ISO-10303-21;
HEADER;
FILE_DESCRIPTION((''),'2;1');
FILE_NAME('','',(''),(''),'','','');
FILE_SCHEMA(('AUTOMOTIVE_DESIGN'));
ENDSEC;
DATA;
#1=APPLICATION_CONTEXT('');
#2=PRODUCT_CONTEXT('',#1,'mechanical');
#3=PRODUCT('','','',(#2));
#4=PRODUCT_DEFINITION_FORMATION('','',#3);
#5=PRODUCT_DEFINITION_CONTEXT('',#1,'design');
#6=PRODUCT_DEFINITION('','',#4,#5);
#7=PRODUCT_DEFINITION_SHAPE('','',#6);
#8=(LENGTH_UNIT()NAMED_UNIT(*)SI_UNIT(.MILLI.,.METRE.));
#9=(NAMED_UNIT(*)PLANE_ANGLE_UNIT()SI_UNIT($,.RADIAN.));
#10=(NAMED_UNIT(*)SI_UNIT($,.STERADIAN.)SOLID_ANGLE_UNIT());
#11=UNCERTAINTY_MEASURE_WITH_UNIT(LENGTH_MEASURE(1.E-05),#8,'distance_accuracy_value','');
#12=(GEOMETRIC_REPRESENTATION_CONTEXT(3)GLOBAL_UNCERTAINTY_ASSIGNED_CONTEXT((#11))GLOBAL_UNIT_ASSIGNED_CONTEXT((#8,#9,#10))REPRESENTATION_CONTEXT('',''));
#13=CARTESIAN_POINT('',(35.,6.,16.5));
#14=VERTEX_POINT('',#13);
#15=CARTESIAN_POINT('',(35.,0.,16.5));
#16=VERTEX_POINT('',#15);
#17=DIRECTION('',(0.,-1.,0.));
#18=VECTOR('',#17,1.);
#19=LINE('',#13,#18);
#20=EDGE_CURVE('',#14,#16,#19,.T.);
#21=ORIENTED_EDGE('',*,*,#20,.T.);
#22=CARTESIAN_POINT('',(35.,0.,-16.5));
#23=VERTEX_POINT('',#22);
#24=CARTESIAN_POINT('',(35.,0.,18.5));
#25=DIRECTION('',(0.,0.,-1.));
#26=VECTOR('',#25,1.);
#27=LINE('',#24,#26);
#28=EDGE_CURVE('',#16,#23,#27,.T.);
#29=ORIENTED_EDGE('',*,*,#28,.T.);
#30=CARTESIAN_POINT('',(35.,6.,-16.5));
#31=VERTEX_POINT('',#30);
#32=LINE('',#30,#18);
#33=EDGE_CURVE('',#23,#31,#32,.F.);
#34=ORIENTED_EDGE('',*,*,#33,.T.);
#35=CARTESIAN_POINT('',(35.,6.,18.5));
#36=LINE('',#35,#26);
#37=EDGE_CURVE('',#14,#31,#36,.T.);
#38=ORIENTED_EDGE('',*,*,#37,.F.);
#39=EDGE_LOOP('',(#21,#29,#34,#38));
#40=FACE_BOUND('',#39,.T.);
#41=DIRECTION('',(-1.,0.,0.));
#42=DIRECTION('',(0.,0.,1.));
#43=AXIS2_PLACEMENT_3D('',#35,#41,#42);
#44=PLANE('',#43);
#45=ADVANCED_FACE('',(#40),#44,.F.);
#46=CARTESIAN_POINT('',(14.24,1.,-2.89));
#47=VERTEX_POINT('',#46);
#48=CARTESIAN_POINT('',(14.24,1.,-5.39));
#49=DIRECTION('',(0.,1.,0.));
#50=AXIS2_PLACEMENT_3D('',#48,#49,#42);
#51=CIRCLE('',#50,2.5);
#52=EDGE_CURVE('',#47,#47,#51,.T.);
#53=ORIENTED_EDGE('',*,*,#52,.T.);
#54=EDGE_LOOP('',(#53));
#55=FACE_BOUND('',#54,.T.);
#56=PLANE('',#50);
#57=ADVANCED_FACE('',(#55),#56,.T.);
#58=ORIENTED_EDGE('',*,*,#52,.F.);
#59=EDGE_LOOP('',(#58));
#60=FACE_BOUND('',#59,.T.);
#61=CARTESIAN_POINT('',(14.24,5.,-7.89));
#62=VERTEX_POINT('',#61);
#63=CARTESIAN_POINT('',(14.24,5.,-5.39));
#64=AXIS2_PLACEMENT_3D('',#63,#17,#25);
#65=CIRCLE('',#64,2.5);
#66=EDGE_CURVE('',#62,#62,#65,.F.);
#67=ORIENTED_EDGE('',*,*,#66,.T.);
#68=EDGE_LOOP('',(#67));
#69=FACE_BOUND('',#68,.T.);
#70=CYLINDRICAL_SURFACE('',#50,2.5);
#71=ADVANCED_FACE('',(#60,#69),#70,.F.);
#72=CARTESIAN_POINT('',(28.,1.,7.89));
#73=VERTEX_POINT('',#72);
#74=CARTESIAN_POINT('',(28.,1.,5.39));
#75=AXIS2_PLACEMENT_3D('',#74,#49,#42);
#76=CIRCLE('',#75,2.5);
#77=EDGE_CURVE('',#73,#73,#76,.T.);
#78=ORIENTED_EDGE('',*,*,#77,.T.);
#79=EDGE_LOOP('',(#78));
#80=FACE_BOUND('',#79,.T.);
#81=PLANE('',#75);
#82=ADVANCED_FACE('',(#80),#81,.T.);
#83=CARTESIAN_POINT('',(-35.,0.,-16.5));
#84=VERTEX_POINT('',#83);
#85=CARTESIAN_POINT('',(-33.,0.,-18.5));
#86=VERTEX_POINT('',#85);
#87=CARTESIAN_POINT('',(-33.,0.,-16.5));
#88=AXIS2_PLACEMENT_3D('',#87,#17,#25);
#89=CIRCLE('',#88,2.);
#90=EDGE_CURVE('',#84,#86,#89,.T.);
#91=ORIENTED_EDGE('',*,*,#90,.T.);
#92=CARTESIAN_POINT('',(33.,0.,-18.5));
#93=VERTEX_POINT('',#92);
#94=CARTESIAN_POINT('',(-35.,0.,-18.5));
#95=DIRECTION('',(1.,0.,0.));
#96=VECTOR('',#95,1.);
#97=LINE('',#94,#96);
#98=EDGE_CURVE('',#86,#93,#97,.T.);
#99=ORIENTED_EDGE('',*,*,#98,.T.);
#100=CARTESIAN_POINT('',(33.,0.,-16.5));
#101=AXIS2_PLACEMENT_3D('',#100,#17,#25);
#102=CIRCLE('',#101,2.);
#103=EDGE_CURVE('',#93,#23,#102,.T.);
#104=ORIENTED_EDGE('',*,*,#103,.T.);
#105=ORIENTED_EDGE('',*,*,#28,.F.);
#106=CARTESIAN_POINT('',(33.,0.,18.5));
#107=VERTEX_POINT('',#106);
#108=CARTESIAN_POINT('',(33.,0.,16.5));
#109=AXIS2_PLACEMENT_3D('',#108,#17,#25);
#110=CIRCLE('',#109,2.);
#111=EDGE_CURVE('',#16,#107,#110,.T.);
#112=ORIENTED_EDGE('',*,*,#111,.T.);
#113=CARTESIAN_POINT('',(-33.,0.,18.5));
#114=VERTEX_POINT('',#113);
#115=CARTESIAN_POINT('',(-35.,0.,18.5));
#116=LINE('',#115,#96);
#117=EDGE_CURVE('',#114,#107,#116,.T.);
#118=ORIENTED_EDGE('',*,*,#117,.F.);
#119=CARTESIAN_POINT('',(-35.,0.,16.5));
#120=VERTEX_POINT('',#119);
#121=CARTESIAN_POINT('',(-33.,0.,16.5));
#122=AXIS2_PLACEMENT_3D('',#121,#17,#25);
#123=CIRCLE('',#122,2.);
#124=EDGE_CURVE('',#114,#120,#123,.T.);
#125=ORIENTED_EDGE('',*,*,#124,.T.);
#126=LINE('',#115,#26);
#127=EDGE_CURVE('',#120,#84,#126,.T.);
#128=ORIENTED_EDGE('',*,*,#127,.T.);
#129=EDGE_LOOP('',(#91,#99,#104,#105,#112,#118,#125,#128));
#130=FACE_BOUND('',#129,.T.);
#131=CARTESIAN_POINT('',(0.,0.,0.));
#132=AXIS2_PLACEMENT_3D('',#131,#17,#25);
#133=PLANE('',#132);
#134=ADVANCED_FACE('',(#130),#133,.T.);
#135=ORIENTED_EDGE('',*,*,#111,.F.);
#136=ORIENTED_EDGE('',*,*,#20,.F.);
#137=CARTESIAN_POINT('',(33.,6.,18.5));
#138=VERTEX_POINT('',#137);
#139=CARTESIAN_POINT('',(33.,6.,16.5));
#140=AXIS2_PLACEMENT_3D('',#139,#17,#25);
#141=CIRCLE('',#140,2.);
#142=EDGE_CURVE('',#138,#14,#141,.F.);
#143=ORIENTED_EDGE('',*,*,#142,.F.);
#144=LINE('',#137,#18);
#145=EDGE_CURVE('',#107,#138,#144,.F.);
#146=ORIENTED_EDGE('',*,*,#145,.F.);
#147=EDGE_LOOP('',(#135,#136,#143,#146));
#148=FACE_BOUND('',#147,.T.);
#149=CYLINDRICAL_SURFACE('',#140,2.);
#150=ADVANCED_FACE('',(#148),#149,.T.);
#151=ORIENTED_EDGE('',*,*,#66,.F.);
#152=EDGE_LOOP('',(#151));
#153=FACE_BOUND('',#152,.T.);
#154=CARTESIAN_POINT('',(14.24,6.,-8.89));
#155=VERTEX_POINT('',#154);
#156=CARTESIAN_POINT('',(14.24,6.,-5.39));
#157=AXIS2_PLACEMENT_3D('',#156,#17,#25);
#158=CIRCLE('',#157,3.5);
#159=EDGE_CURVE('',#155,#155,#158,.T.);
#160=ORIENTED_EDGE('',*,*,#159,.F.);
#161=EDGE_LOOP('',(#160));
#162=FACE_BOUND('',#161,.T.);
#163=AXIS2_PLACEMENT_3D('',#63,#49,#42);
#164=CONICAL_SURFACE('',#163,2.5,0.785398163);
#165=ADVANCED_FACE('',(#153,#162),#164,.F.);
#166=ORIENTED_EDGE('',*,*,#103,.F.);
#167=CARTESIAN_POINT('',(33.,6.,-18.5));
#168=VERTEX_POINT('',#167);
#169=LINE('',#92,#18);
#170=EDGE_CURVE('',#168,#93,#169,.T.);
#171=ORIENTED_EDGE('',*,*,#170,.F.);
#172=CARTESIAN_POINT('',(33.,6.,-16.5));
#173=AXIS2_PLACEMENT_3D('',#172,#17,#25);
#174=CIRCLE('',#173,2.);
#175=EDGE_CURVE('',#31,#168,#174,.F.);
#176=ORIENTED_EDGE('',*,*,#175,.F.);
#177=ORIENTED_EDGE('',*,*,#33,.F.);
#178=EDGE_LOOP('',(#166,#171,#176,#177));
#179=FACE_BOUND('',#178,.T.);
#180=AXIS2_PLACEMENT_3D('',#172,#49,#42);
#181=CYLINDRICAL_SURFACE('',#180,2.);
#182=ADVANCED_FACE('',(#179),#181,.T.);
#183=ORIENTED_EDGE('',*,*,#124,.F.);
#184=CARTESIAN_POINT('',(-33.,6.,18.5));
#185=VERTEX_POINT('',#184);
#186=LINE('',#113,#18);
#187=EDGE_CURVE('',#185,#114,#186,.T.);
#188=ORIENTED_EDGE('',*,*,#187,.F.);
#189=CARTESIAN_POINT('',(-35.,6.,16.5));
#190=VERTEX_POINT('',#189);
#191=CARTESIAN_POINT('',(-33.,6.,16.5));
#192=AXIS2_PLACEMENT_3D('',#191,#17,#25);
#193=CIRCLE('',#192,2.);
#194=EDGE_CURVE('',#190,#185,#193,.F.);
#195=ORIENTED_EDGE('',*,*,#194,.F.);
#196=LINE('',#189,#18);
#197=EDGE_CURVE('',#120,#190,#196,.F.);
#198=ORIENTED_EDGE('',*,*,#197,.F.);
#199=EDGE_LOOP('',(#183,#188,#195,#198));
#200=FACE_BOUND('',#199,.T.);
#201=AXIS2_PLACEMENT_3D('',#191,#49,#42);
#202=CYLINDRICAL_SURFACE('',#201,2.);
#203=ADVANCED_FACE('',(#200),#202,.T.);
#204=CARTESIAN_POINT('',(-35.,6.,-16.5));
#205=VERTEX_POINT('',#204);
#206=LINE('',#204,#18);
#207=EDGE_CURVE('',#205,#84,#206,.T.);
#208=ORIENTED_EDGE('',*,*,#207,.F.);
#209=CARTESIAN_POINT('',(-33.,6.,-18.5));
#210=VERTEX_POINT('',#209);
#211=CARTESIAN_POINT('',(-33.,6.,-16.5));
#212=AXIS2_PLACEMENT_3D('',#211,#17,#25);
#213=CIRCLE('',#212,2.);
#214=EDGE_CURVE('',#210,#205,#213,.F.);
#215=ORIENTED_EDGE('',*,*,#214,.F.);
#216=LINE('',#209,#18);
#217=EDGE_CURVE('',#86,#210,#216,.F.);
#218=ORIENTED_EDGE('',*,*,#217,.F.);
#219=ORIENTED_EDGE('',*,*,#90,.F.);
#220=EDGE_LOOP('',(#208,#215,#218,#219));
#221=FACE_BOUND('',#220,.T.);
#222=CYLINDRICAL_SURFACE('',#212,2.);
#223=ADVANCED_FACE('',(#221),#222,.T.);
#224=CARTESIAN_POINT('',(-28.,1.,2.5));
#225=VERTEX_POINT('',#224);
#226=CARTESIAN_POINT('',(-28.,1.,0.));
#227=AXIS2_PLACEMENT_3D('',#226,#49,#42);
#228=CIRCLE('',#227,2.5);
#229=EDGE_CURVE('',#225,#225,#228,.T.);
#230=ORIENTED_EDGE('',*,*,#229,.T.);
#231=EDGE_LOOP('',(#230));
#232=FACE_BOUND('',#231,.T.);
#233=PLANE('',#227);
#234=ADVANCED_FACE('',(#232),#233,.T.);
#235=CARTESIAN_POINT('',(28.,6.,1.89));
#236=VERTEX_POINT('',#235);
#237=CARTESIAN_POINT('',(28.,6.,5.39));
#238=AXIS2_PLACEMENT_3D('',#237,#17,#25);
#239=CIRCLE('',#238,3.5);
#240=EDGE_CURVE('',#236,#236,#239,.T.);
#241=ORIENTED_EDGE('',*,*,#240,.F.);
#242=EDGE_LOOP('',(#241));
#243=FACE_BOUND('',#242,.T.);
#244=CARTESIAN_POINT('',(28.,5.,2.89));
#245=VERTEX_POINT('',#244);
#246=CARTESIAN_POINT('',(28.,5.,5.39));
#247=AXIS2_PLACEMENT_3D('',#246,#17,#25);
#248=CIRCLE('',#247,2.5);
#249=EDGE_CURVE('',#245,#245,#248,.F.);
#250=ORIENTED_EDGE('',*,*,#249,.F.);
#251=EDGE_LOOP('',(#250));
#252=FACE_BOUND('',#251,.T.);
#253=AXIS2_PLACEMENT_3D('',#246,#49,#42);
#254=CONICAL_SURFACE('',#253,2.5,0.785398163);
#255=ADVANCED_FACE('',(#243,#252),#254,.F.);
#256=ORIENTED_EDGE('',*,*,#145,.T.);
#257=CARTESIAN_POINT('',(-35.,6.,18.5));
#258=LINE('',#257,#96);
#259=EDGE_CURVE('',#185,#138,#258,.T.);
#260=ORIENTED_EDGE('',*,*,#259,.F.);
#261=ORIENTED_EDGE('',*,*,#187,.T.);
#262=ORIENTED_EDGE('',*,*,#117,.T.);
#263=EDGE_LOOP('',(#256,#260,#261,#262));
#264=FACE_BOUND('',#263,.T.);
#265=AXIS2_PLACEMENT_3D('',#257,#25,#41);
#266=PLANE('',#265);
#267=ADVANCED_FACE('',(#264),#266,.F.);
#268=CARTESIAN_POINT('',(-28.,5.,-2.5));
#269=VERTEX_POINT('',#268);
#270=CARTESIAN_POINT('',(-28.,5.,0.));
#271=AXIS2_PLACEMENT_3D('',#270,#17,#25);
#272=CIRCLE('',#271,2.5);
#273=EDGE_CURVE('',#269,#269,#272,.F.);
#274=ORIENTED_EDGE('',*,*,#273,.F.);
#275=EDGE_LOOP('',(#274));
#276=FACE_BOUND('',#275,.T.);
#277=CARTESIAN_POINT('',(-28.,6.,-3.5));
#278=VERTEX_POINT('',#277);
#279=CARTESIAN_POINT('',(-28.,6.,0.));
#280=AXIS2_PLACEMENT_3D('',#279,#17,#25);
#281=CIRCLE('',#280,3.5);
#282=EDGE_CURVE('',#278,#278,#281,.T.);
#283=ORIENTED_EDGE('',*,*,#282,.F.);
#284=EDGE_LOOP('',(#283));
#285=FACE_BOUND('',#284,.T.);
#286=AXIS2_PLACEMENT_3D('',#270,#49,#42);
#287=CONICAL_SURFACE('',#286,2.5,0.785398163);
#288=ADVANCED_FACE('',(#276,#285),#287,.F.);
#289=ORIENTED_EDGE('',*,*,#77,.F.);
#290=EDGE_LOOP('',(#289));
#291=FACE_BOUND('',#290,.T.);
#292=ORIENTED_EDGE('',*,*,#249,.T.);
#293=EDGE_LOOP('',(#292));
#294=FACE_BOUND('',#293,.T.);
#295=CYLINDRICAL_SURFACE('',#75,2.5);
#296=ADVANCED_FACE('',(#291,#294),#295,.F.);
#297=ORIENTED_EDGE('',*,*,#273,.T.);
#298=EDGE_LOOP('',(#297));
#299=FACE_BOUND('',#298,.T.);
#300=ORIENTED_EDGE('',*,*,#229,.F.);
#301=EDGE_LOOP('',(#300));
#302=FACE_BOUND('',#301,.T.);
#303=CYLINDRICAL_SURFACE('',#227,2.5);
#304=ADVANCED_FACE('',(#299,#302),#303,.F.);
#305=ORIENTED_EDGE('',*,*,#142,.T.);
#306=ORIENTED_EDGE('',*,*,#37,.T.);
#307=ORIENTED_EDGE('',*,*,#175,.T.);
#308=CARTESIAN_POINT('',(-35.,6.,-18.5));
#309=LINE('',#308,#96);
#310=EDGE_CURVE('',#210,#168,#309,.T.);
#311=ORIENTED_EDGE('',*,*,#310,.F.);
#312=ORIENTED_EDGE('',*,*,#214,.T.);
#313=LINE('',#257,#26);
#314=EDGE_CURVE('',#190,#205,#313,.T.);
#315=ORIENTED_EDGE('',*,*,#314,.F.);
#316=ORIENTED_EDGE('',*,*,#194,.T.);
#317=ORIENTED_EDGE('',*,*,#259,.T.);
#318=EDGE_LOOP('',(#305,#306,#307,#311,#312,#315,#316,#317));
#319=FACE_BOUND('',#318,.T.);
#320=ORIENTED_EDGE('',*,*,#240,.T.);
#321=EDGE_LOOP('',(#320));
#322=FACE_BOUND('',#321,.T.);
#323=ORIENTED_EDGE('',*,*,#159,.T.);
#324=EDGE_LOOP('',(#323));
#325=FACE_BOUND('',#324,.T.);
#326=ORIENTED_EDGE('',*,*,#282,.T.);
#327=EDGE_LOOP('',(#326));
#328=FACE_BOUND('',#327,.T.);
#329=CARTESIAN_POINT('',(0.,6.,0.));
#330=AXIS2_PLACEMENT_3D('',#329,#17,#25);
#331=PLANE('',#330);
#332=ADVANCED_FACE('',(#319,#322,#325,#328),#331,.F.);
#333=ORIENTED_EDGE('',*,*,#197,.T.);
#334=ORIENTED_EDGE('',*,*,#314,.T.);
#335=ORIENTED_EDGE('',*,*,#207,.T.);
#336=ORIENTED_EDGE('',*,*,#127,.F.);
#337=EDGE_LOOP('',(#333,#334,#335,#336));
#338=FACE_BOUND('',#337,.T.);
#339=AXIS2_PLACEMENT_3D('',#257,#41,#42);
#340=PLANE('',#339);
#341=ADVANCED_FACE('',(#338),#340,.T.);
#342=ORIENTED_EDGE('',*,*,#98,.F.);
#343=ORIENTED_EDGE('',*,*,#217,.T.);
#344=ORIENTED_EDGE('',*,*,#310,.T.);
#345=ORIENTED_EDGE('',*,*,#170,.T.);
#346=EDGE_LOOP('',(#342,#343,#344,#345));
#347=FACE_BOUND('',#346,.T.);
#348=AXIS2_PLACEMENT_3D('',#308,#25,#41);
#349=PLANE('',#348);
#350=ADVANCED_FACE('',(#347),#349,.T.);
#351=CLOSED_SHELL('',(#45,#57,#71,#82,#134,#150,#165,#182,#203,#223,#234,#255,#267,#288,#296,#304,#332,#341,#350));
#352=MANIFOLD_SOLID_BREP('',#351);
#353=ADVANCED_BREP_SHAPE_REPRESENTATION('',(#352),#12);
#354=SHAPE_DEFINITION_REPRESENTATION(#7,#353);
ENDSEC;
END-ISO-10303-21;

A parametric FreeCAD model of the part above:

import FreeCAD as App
import Part
import Sketcher

V = App.Vector


def edges_at(feature, points):
    """Names of the edges that pass closest to the given points."""
    edges = feature.Shape.Edges
    near = lambda p: min(range(len(edges)), key=lambda i: edges[i].distToShape(Part.Vertex(*p))[0])
    return sorted({f"Edge{near(p) + 1}" for p in points})

doc = App.newDocument("Part")
body = doc.addObject("PartDesign::Body", "Body")

# Sketch on XZ plane
sketch1 = body.newObject("Sketcher::SketchObject", "Sketch")
sketch1.AttachmentSupport = (doc.getObject("XZ_Plane"), [""])
sketch1.MapMode = "FlatFace"
sketch1.addGeometry(Part.LineSegment(V(-35, -18, 0), V(-35, 18, 0)), False)
sketch1.addGeometry(Part.LineSegment(V(-35, 18, 0), V(35, 18, 0)), False)
sketch1.addGeometry(Part.LineSegment(V(35, 18, 0), V(35, -18, 0)), False)
sketch1.addGeometry(Part.LineSegment(V(35, -18, 0), V(-35, -18, 0)), False)
sketch1.addConstraint(Sketcher.Constraint("Coincident", 0, 2, 1, 1))
sketch1.addConstraint(Sketcher.Constraint("Coincident", 1, 2, 2, 1))
sketch1.addConstraint(Sketcher.Constraint("Coincident", 2, 2, 3, 1))
sketch1.addConstraint(Sketcher.Constraint("Coincident", 3, 2, 0, 1))
sketch1.addConstraint(Sketcher.Constraint("Vertical", 0))
sketch1.addConstraint(Sketcher.Constraint("Horizontal", 1))
sketch1.addConstraint(Sketcher.Constraint("Vertical", 2))
sketch1.addConstraint(Sketcher.Constraint("Horizontal", 3))
sketch1.addConstraint(Sketcher.Constraint("Symmetric", 0, 2, 2, 2, -1, 1))
sketch1.addConstraint(Sketcher.Constraint("DistanceX", 1, 1, 1, 2, 70.0))
sketch1.addConstraint(Sketcher.Constraint("DistanceY", 0, 1, 0, 2, 37.0))
pad1 = body.newObject("PartDesign::Pad", "Pad")
pad1.Profile = sketch1
pad1.Length = 6
pad1.Reversed = True
doc.recompute()

fillet = body.newObject("PartDesign::Fillet", "Fillet")
fillet.Base = (pad1, edges_at(pad1, [
    (-35, 3, 18.5),
    (35, 3, 18.5),
    (35, 3, -18.5),
    (-35, 3, -18.5),
]))
fillet.Radius = 2

# Sketch on XZ plane
sketch2 = body.newObject("Sketcher::SketchObject", "Sketch001")
sketch2.AttachmentSupport = (doc.getObject("XZ_Plane"), [""])
sketch2.MapMode = "FlatFace"
sketch2.AttachmentOffset = App.Placement(V(0, 0, -6), App.Rotation())
sketch2.addGeometry(Part.Circle(V(28, 5.4, 0), V(0, 0, 1), 2.5), False)
sketch2.addConstraint(Sketcher.Constraint("Diameter", 0, 5.0))
sketch2.addConstraint(Sketcher.Constraint("DistanceX", -1, 1, 0, 3, 28.0))
sketch2.addConstraint(Sketcher.Constraint("DistanceY", -1, 1, 0, 3, 5.39))
pocket1 = body.newObject("PartDesign::Pocket", "Pocket")
pocket1.Profile = sketch2
pocket1.Length = 5
pocket1.Reversed = True

# Sketch on XZ plane
sketch3 = body.newObject("Sketcher::SketchObject", "Sketch002")
sketch3.AttachmentSupport = (doc.getObject("XZ_Plane"), [""])
sketch3.MapMode = "FlatFace"
sketch3.AttachmentOffset = App.Placement(V(0, 0, -6), App.Rotation())
sketch3.addGeometry(Part.Circle(V(14.2, -5.4, 0), V(0, 0, 1), 2.5), False)
sketch3.addConstraint(Sketcher.Constraint("Diameter", 0, 5.0))
sketch3.addConstraint(Sketcher.Constraint("DistanceX", -1, 1, 0, 3, 14.24))
sketch3.addConstraint(Sketcher.Constraint("DistanceY", 0, 3, -1, 1, 5.39))
pocket2 = body.newObject("PartDesign::Pocket", "Pocket001")
pocket2.Profile = sketch3
pocket2.Length = 5
pocket2.Reversed = True

# Sketch on XZ plane
sketch4 = body.newObject("Sketcher::SketchObject", "Sketch003")
sketch4.AttachmentSupport = (doc.getObject("XZ_Plane"), [""])
sketch4.MapMode = "FlatFace"
sketch4.AttachmentOffset = App.Placement(V(0, 0, -6), App.Rotation())
sketch4.addGeometry(Part.Circle(V(-28, 0, 0), V(0, 0, 1), 2.5), False)
sketch4.addConstraint(Sketcher.Constraint("PointOnObject", 0, 3, -1))
sketch4.addConstraint(Sketcher.Constraint("Diameter", 0, 5.0))
sketch4.addConstraint(Sketcher.Constraint("DistanceX", 0, 3, -1, 1, 28.0))
pocket3 = body.newObject("PartDesign::Pocket", "Pocket002")
pocket3.Profile = sketch4
pocket3.Length = 5
pocket3.Reversed = True
doc.recompute()

chamfer = body.newObject("PartDesign::Chamfer", "Chamfer")
chamfer.Base = (pocket3, edges_at(pocket3, [(28, 6, 2.89), (14.24, 6, -7.89), (-28, 6, -2.5)]))
chamfer.Size = 1

doc.recompute()
